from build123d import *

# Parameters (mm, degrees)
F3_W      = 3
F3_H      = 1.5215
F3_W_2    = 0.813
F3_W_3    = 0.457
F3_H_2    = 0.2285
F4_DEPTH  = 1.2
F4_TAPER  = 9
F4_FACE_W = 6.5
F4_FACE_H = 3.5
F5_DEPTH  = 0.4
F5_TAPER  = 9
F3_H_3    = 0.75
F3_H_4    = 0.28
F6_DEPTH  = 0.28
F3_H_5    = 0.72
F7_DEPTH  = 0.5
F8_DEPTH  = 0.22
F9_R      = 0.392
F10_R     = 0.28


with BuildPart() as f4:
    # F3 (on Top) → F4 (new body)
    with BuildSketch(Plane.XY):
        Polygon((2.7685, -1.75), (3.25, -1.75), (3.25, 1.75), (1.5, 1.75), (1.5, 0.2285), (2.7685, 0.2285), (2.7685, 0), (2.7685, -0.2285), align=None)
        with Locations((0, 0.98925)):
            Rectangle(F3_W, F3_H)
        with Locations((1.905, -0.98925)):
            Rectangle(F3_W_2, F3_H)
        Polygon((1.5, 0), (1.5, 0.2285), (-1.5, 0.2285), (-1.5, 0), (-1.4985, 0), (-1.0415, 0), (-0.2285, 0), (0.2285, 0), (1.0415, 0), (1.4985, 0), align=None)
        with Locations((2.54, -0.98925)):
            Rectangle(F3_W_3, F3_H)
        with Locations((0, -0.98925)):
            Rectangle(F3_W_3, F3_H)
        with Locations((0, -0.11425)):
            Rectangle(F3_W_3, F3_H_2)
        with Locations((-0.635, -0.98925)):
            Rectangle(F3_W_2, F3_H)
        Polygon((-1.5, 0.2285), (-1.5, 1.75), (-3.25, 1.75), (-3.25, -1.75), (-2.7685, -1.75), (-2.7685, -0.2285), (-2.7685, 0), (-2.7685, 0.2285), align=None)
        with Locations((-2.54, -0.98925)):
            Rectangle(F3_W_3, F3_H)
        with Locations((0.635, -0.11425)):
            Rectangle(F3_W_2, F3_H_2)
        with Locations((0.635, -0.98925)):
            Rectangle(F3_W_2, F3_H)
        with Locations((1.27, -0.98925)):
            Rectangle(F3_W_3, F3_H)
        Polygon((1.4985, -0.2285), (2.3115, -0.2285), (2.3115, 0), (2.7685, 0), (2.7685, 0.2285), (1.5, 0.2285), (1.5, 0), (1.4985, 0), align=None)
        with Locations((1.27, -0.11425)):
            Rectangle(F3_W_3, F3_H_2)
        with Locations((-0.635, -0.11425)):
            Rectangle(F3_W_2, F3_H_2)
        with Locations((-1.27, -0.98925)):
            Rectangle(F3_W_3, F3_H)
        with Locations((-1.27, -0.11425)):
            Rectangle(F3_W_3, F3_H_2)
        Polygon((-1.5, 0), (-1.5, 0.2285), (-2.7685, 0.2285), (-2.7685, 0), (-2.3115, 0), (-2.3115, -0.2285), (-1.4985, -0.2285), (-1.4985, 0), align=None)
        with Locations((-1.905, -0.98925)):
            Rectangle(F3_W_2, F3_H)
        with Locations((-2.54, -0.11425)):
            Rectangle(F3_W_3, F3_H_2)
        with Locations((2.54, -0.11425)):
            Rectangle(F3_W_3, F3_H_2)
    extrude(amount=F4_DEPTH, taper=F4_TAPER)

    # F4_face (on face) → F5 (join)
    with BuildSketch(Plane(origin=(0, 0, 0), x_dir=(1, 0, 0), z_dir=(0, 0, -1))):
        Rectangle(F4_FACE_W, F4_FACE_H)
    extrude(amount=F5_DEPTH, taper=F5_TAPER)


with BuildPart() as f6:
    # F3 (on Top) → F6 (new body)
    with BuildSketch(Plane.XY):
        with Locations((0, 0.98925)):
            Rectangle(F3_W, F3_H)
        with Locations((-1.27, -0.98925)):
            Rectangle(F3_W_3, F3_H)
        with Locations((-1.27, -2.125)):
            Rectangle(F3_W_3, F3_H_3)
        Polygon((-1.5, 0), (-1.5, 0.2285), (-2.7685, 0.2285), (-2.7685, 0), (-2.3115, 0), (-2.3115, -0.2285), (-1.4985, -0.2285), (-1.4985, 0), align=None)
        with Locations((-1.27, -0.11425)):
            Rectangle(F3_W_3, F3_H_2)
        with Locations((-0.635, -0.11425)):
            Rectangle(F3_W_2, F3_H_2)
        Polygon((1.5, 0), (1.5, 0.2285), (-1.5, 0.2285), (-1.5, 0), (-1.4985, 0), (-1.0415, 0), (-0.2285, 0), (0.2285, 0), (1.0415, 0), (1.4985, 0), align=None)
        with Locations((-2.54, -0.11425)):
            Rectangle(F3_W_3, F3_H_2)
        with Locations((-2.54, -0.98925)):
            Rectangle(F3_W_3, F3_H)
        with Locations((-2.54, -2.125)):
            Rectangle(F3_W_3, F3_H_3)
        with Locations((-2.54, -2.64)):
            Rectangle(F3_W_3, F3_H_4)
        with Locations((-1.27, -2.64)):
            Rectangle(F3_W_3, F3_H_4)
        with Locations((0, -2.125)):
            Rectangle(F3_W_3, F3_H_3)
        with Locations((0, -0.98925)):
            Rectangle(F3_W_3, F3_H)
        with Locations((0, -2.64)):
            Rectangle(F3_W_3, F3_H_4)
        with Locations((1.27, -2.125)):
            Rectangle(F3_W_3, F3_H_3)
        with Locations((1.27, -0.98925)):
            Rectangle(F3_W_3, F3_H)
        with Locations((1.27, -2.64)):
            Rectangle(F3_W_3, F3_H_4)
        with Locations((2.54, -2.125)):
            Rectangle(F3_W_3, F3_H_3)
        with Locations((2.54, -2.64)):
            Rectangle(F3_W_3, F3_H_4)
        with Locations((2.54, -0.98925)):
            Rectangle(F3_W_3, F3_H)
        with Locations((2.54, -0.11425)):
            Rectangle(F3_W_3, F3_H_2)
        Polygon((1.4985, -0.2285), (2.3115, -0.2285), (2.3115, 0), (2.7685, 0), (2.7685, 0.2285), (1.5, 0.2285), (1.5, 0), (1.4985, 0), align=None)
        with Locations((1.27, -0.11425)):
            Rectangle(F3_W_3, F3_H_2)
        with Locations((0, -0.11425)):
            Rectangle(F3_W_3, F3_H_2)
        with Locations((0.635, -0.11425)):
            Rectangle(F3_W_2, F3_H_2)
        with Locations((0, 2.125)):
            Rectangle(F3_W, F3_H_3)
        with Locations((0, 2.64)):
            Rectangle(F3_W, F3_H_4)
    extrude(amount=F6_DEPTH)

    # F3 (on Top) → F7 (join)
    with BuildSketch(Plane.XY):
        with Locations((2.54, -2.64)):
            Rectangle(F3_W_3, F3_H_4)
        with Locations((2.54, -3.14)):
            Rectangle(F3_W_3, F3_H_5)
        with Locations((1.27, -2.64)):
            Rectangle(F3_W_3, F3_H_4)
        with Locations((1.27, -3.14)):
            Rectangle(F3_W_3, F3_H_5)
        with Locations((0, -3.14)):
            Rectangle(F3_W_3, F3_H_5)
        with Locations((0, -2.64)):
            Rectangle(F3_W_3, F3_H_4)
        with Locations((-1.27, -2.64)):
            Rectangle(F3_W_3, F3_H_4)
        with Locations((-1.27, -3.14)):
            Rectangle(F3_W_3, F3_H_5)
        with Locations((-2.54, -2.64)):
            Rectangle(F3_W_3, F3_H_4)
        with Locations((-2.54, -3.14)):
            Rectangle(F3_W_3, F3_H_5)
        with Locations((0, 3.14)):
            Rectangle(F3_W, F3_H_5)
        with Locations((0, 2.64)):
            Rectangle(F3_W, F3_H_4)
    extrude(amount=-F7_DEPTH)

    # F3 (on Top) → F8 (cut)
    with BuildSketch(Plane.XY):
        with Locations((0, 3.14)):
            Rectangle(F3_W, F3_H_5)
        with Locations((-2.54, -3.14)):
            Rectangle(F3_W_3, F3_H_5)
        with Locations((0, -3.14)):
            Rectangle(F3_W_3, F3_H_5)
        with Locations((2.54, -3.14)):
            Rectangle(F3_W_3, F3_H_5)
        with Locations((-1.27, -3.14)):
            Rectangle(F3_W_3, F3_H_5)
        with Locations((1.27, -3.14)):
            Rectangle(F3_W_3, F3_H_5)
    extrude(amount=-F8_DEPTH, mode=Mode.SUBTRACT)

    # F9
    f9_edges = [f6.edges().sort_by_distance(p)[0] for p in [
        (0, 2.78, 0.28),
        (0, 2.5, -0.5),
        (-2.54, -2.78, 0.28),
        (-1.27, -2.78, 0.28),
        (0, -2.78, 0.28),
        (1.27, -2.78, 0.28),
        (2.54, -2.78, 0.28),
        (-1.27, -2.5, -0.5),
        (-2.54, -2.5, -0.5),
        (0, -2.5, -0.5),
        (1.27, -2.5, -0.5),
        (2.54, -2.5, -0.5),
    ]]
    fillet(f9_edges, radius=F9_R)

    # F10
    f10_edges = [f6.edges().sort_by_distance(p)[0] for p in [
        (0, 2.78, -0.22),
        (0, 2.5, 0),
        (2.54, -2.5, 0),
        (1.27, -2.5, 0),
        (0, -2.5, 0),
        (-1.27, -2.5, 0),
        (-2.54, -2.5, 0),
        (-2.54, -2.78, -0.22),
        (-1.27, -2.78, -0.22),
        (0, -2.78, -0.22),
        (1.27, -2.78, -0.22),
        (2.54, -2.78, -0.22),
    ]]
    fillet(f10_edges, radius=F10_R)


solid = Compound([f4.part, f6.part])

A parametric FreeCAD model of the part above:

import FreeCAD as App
import Part
import Sketcher

V = App.Vector


def edges_at(feature, points):
    """Names of the edges that pass closest to the given points."""
    edges = feature.Shape.Edges
    near = lambda p: min(range(len(edges)), key=lambda i: edges[i].distToShape(Part.Vertex(*p))[0])
    return sorted({f"Edge{near(p) + 1}" for p in points})

doc = App.newDocument("Part")
params = doc.addObject("Spreadsheet::Sheet", "Params")
for row, (alias, value) in enumerate([
    ("sketch1_width", "6.5 mm"),
    ("sketch1_height", "3.5 mm"),
    ("pad1_length", "1.2 mm"),
    ("pad1_taper", "-9 deg"),
    ("sketch2_width", "6.5 mm"),
    ("sketch2_height", "3.5 mm"),
    ("pad2_length", "0.4 mm"),
    ("pad2_taper", "-9 deg"),
    ("sketch3_width", "3 mm"),
    ("pad3_length", "0.28 mm"),
    ("sketch4_width", "3 mm"),
    ("sketch4_height", "1 mm"),
    ("pad4_length", "0.5 mm"),
    ("sketch5_width", "3 mm"),
    ("sketch5_height", "0.72 mm"),
    ("pocket1_length", "0.22 mm"),
    ("fillet_radius", "0.392 mm"),
    ("fillet2_radius", "0.28 mm"),
], start=1):
    params.set(f"A{row}", alias)
    params.set(f"B{row}", "=" + value)
    params.setAlias(f"B{row}", alias)

body = doc.addObject("PartDesign::Body", "Body")

# Sketch on XY plane
sketch1 = doc.addObject("Sketcher::SketchObject", "Sketch")
body.addObject(sketch1)
sketch1.AttachmentSupport = (doc.XY_Plane, [""])
sketch1.MapMode = "FlatFace"
sketch1.addGeometry([
    Part.LineSegment(V(-3.25, -1.75, 0), V(3.25, -1.75, 0)),
    Part.LineSegment(V(3.25, -1.75, 0), V(3.25, 1.75, 0)),
    Part.LineSegment(V(3.25, 1.75, 0), V(-3.25, 1.75, 0)),
    Part.LineSegment(V(-3.25, 1.75, 0), V(-3.25, -1.75, 0)),
], False)
sketch1.addConstraint([
    Sketcher.Constraint("Coincident", 0, 2, 1, 1),
    Sketcher.Constraint("Coincident", 1, 2, 2, 1),
    Sketcher.Constraint("Coincident", 2, 2, 3, 1),
    Sketcher.Constraint("Coincident", 3, 2, 0, 1),
    Sketcher.Constraint("Horizontal", 0),
    Sketcher.Constraint("Vertical", 1),
    Sketcher.Constraint("Horizontal", 2),
    Sketcher.Constraint("Vertical", 3),
    Sketcher.Constraint("Symmetric", 0, 2, 2, 2, -1, 1),
    Sketcher.Constraint("DistanceX", 0, 1, 0, 2, 6.5),
    Sketcher.Constraint("DistanceY", 1, 1, 1, 2, 3.5),
])
sketch1.setExpression("Constraints[9]", "Params.sketch1_width")
sketch1.setExpression("Constraints[10]", "Params.sketch1_height")
pad1 = doc.addObject("PartDesign::Pad", "Pad")
body.addObject(pad1)
pad1.Profile = sketch1
pad1.setExpression("Length", "Params.pad1_length")
pad1.setExpression("TaperAngle", "Params.pad1_taper")

# Sketch on XY plane
sketch2 = doc.addObject("Sketcher::SketchObject", "Sketch001")
body.addObject(sketch2)
sketch2.AttachmentSupport = (doc.XY_Plane, [""])
sketch2.MapMode = "FlatFace"
sketch2.addGeometry([
    Part.LineSegment(V(-3.25, -1.75, 0), V(-3.25, 1.75, 0)),
    Part.LineSegment(V(-3.25, 1.75, 0), V(3.25, 1.75, 0)),
    Part.LineSegment(V(3.25, 1.75, 0), V(3.25, -1.75, 0)),
    Part.LineSegment(V(3.25, -1.75, 0), V(-3.25, -1.75, 0)),
], False)
sketch2.addConstraint([
    Sketcher.Constraint("Coincident", 0, 2, 1, 1),
    Sketcher.Constraint("Coincident", 1, 2, 2, 1),
    Sketcher.Constraint("Coincident", 2, 2, 3, 1),
    Sketcher.Constraint("Coincident", 3, 2, 0, 1),
    Sketcher.Constraint("Vertical", 0),
    Sketcher.Constraint("Horizontal", 1),
    Sketcher.Constraint("Vertical", 2),
    Sketcher.Constraint("Horizontal", 3),
    Sketcher.Constraint("Symmetric", 0, 2, 2, 2, -1, 1),
    Sketcher.Constraint("DistanceX", 1, 1, 1, 2, 6.5),
    Sketcher.Constraint("DistanceY", 0, 1, 0, 2, 3.5),
])
sketch2.setExpression("Constraints[9]", "Params.sketch2_width")
sketch2.setExpression("Constraints[10]", "Params.sketch2_height")
pad2 = doc.addObject("PartDesign::Pad", "Pad001")
body.addObject(pad2)
pad2.Profile = sketch2
pad2.setExpression("Length", "Params.pad2_length")
pad2.Reversed = True
pad2.setExpression("TaperAngle", "Params.pad2_taper")
body2 = doc.addObject("PartDesign::Body", "Body001")

# Sketch on XY plane
sketch3 = doc.addObject("Sketcher::SketchObject", "Sketch002")
body2.addObject(sketch3)
sketch3.AttachmentSupport = (doc.getObject("XY_Plane001"), [""])
sketch3.MapMode = "FlatFace"
sketch3.addGeometry([
    Part.LineSegment(V(-1.5, 0.2285, 0), V(-2.7685, 0.2285, 0)),  # 0
    Part.LineSegment(V(-2.7685, 0.2285, 0), V(-2.7685, -2.78, 0)),  # 1
    Part.LineSegment(V(-2.7685, -2.78, 0), V(-2.3115, -2.78, 0)),  # 2
    Part.LineSegment(V(-2.3115, -2.78, 0), V(-2.3115, -0.2285, 0)),  # 3
    Part.LineSegment(V(-2.3115, -0.2285, 0), V(-1.4985, -0.2285, 0)),  # 4
    Part.LineSegment(V(-1.4985, -0.2285, 0), V(-1.4985, -2.78, 0)),  # 5
    Part.LineSegment(V(-1.4985, -2.78, 0), V(-1.0415, -2.78, 0)),  # 6
    Part.LineSegment(V(-1.0415, -2.78, 0), V(-1.0415, -0.2285, 0)),  # 7
    Part.LineSegment(V(-1.0415, -0.2285, 0), V(-0.2285, -0.2285, 0)),  # 8
    Part.LineSegment(V(-0.2285, -0.2285, 0), V(-0.2285, -2.78, 0)),  # 9
    Part.LineSegment(V(-0.2285, -2.78, 0), V(0.2285, -2.78, 0)),  # 10
    Part.LineSegment(V(0.2285, -2.78, 0), V(0.2285, -0.2285, 0)),  # 11
    Part.LineSegment(V(0.2285, -0.2285, 0), V(1.0415, -0.2285, 0)),  # 12
    Part.LineSegment(V(1.0415, -0.2285, 0), V(1.0415, -2.78, 0)),  # 13
    Part.LineSegment(V(1.0415, -2.78, 0), V(1.4985, -2.78, 0)),  # 14
    Part.LineSegment(V(1.4985, -2.78, 0), V(1.4985, -0.2285, 0)),  # 15
    Part.LineSegment(V(1.4985, -0.2285, 0), V(2.3115, -0.2285, 0)),  # 16
    Part.LineSegment(V(2.3115, -0.2285, 0), V(2.3115, -2.78, 0)),  # 17
    Part.LineSegment(V(2.3115, -2.78, 0), V(2.7685, -2.78, 0)),  # 18
    Part.LineSegment(V(2.7685, -2.78, 0), V(2.7685, 0.2285, 0)),  # 19
    Part.LineSegment(V(2.7685, 0.2285, 0), V(1.5, 0.2285, 0)),  # 20
    Part.LineSegment(V(1.5, 0.2285, 0), V(1.5, 2.78, 0)),  # 21
    Part.LineSegment(V(1.5, 2.78, 0), V(-1.5, 2.78, 0)),  # 22
    Part.LineSegment(V(-1.5, 2.78, 0), V(-1.5, 0.2285, 0)),  # 23
], False)
sketch3.addConstraint([
    Sketcher.Constraint("Coincident", 0, 2, 1, 1),
    Sketcher.Constraint("Coincident", 1, 2, 2, 1),
    Sketcher.Constraint("Coincident", 2, 2, 3, 1),
    Sketcher.Constraint("Coincident", 3, 2, 4, 1),
    Sketcher.Constraint("Coincident", 4, 2, 5, 1),
    Sketcher.Constraint("Coincident", 5, 2, 6, 1),
    Sketcher.Constraint("Coincident", 6, 2, 7, 1),
    Sketcher.Constraint("Coincident", 7, 2, 8, 1),
    Sketcher.Constraint("Coincident", 8, 2, 9, 1),
    Sketcher.Constraint("Coincident", 9, 2, 10, 1),
    Sketcher.Constraint("Coincident", 10, 2, 11, 1),
    Sketcher.Constraint("Coincident", 11, 2, 12, 1),
    Sketcher.Constraint("Coincident", 12, 2, 13, 1),
    Sketcher.Constraint("Coincident", 13, 2, 14, 1),
    Sketcher.Constraint("Coincident", 14, 2, 15, 1),
    Sketcher.Constraint("Coincident", 15, 2, 16, 1),
    Sketcher.Constraint("Coincident", 16, 2, 17, 1),
    Sketcher.Constraint("Coincident", 17, 2, 18, 1),
    Sketcher.Constraint("Coincident", 18, 2, 19, 1),
    Sketcher.Constraint("Coincident", 19, 2, 20, 1),
    Sketcher.Constraint("Coincident", 20, 2, 21, 1),
    Sketcher.Constraint("Coincident", 21, 2, 22, 1),
    Sketcher.Constraint("Coincident", 22, 2, 23, 1),
    Sketcher.Constraint("Coincident", 23, 2, 0, 1),
    Sketcher.Constraint("Horizontal", 0),
    Sketcher.Constraint("Vertical", 1),
    Sketcher.Constraint("Horizontal", 2),
    Sketcher.Constraint("Vertical", 3),
    Sketcher.Constraint("Horizontal", 4),
    Sketcher.Constraint("Vertical", 5),
    Sketcher.Constraint("Horizontal", 6),
    Sketcher.Constraint("Vertical", 7),
    Sketcher.Constraint("Horizontal", 8),
    Sketcher.Constraint("Vertical", 9),
    Sketcher.Constraint("Horizontal", 10),
    Sketcher.Constraint("Vertical", 11),
    Sketcher.Constraint("Horizontal", 12),
    Sketcher.Constraint("Vertical", 13),
    Sketcher.Constraint("Horizontal", 14),
    Sketcher.Constraint("Vertical", 15),
    Sketcher.Constraint("Horizontal", 16),
    Sketcher.Constraint("Vertical", 17),
    Sketcher.Constraint("Horizontal", 18),
    Sketcher.Constraint("Vertical", 19),
    Sketcher.Constraint("Horizontal", 20),
    Sketcher.Constraint("Vertical", 21),
    Sketcher.Constraint("Horizontal", 22),
    Sketcher.Constraint("Vertical", 23),
    Sketcher.Constraint("Symmetric", 8, 2, 11, 2, -2),
    Sketcher.Constraint("Symmetric", 6, 2, 13, 2, -2),
    Sketcher.Constraint("Symmetric", 4, 2, 15, 2, -2),
    Sketcher.Constraint("Symmetric", 2, 2, 17, 2, -2),
    Sketcher.Constraint("Symmetric", 0, 2, 19, 2, -2),
    Sketcher.Constraint("Horizontal", 2, 2, 5, 2),
    Sketcher.Constraint("Horizontal", 4, 2, 7, 2),
    Sketcher.Constraint("Horizontal", 6, 2, 9, 2),
    Sketcher.Constraint("Equal", 2, 6),
    Sketcher.Constraint("Equal", 4, 8),
    Sketcher.Constraint("Equal", 6, 10),
    Sketcher.Constraint("Equal", 0, 20),
    Sketcher.Constraint("Equal", 17, 21),
    Sketcher.Constraint("DistanceX", 22, 2, 22, 1, 3.0),
    Sketcher.Constraint("DistanceX", 2, 1, 2, 2, 0.457),
    Sketcher.Constraint("DistanceX", 4, 1, 4, 2, 0.813),
    Sketcher.Constraint("DistanceY", 1, 2, -1, 1, 2.78),
    Sketcher.Constraint("DistanceY", -1, 1, 21, 2, 2.78),
    Sketcher.Constraint("DistanceY", 1, 2, 1, 1, 3.0085),
])
sketch3.setExpression("Constraints[61]", "Params.sketch3_width")
pad3 = doc.addObject("PartDesign::Pad", "Pad002")
body2.addObject(pad3)
pad3.Profile = sketch3
pad3.setExpression("Length", "Params.pad3_length")

# Sketch on XY plane
sketch4 = doc.addObject("Sketcher::SketchObject", "Sketch003")
body2.addObject(sketch4)
sketch4.AttachmentSupport = (doc.getObject("XY_Plane001"), [""])
sketch4.MapMode = "FlatFace"
sketch4.addGeometry([
    Part.LineSegment(V(2.3115, -2.5, 0), V(2.3115, -3.5, 0)),  # 0
    Part.LineSegment(V(2.3115, -3.5, 0), V(2.7685, -3.5, 0)),  # 1
    Part.LineSegment(V(2.7685, -3.5, 0), V(2.7685, -2.5, 0)),  # 2
    Part.LineSegment(V(2.7685, -2.5, 0), V(2.3115, -2.5, 0)),  # 3
    Part.LineSegment(V(1.0415, -2.5, 0), V(1.0415, -3.5, 0)),  # 4
    Part.LineSegment(V(1.0415, -3.5, 0), V(1.4985, -3.5, 0)),  # 5
    Part.LineSegment(V(1.4985, -3.5, 0), V(1.4985, -2.5, 0)),  # 6
    Part.LineSegment(V(1.4985, -2.5, 0), V(1.0415, -2.5, 0)),  # 7
    Part.LineSegment(V(-0.2285, -3.5, 0), V(0.2285, -3.5, 0)),  # 8
    Part.LineSegment(V(0.2285, -3.5, 0), V(0.2285, -2.5, 0)),  # 9
    Part.LineSegment(V(0.2285, -2.5, 0), V(-0.2285, -2.5, 0)),  # 10
    Part.LineSegment(V(-0.2285, -2.5, 0), V(-0.2285, -3.5, 0)),  # 11
    Part.LineSegment(V(-1.4985, -2.5, 0), V(-1.4985, -3.5, 0)),  # 12
    Part.LineSegment(V(-1.4985, -3.5, 0), V(-1.0415, -3.5, 0)),  # 13
    Part.LineSegment(V(-1.0415, -3.5, 0), V(-1.0415, -2.5, 0)),  # 14
    Part.LineSegment(V(-1.0415, -2.5, 0), V(-1.4985, -2.5, 0)),  # 15
    Part.LineSegment(V(-2.7685, -2.5, 0), V(-2.7685, -3.5, 0)),  # 16
    Part.LineSegment(V(-2.7685, -3.5, 0), V(-2.3115, -3.5, 0)),  # 17
    Part.LineSegment(V(-2.3115, -3.5, 0), V(-2.3115, -2.5, 0)),  # 18
    Part.LineSegment(V(-2.3115, -2.5, 0), V(-2.7685, -2.5, 0)),  # 19
    Part.LineSegment(V(-1.5, 3.5, 0), V(-1.5, 2.5, 0)),  # 20
    Part.LineSegment(V(-1.5, 2.5, 0), V(1.5, 2.5, 0)),  # 21
    Part.LineSegment(V(1.5, 2.5, 0), V(1.5, 3.5, 0)),  # 22
    Part.LineSegment(V(1.5, 3.5, 0), V(-1.5, 3.5, 0)),  # 23
], False)
sketch4.addConstraint([
    Sketcher.Constraint("Coincident", 0, 2, 1, 1),
    Sketcher.Constraint("Coincident", 1, 2, 2, 1),
    Sketcher.Constraint("Coincident", 2, 2, 3, 1),
    Sketcher.Constraint("Coincident", 3, 2, 0, 1),
    Sketcher.Constraint("Coincident", 4, 2, 5, 1),
    Sketcher.Constraint("Coincident", 5, 2, 6, 1),
    Sketcher.Constraint("Coincident", 6, 2, 7, 1),
    Sketcher.Constraint("Coincident", 7, 2, 4, 1),
    Sketcher.Constraint("Coincident", 8, 2, 9, 1),
    Sketcher.Constraint("Coincident", 9, 2, 10, 1),
    Sketcher.Constraint("Coincident", 10, 2, 11, 1),
    Sketcher.Constraint("Coincident", 11, 2, 8, 1),
    Sketcher.Constraint("Coincident", 12, 2, 13, 1),
    Sketcher.Constraint("Coincident", 13, 2, 14, 1),
    Sketcher.Constraint("Coincident", 14, 2, 15, 1),
    Sketcher.Constraint("Coincident", 15, 2, 12, 1),
    Sketcher.Constraint("Coincident", 16, 2, 17, 1),
    Sketcher.Constraint("Coincident", 17, 2, 18, 1),
    Sketcher.Constraint("Coincident", 18, 2, 19, 1),
    Sketcher.Constraint("Coincident", 19, 2, 16, 1),
    Sketcher.Constraint("Coincident", 20, 2, 21, 1),
    Sketcher.Constraint("Coincident", 21, 2, 22, 1),
    Sketcher.Constraint("Coincident", 22, 2, 23, 1),
    Sketcher.Constraint("Coincident", 23, 2, 20, 1),
    Sketcher.Constraint("Vertical", 0),
    Sketcher.Constraint("Horizontal", 1),
    Sketcher.Constraint("Vertical", 2),
    Sketcher.Constraint("Horizontal", 3),
    Sketcher.Constraint("Vertical", 4),
    Sketcher.Constraint("Horizontal", 5),
    Sketcher.Constraint("Vertical", 6),
    Sketcher.Constraint("Horizontal", 7),
    Sketcher.Constraint("Horizontal", 8),
    Sketcher.Constraint("Vertical", 9),
    Sketcher.Constraint("Horizontal", 10),
    Sketcher.Constraint("Vertical", 11),
    Sketcher.Constraint("Vertical", 12),
    Sketcher.Constraint("Horizontal", 13),
    Sketcher.Constraint("Vertical", 14),
    Sketcher.Constraint("Horizontal", 15),
    Sketcher.Constraint("Vertical", 16),
    Sketcher.Constraint("Horizontal", 17),
    Sketcher.Constraint("Vertical", 18),
    Sketcher.Constraint("Horizontal", 19),
    Sketcher.Constraint("Vertical", 20),
    Sketcher.Constraint("Horizontal", 21),
    Sketcher.Constraint("Vertical", 22),
    Sketcher.Constraint("Horizontal", 23),
    Sketcher.Constraint("Symmetric", 5, 2, 12, 2, -2),
    Sketcher.Constraint("Symmetric", 7, 2, 14, 2, -2),
    Sketcher.Constraint("Symmetric", 1, 2, 16, 2, -2),
    Sketcher.Constraint("Symmetric", 3, 2, 18, 2, -2),
    Sketcher.Constraint("Horizontal", 1, 2, 4, 2),
    Sketcher.Constraint("Horizontal", 3, 2, 6, 2),
    Sketcher.Constraint("Horizontal", 5, 2, 8, 2),
    Sketcher.Constraint("Horizontal", 7, 2, 9, 2),
    Sketcher.Constraint("Equal", 3, 5),
    Sketcher.Constraint("Equal", 7, 8),
    Sketcher.Constraint("Equal", 18, 20),
    Sketcher.Constraint("DistanceX", 21, 1, 21, 2, 3.0),
    Sketcher.Constraint("DistanceY", 0, 2, 0, 1, 1.0),
    Sketcher.Constraint("DistanceY", 15, 2, 20, 2, 5.0),
    Sketcher.Constraint("DistanceY", 0, 2, -1, 1, 3.5),
    Sketcher.Constraint("DistanceX", 20, 2, -1, 1, 1.5),
    Sketcher.Constraint("DistanceX", 1, 1, 1, 2, 0.457),
    Sketcher.Constraint("DistanceX", 4, 2, 0, 2, 1.27),
    Sketcher.Constraint("DistanceX", 8, 2, 5, 2, 1.27),
    Sketcher.Constraint("DistanceX", 12, 2, 11, 2, 1.27),
])
sketch4.setExpression("Constraints[59]", "Params.sketch4_width")
sketch4.setExpression("Constraints[60]", "Params.sketch4_height")
pad4 = doc.addObject("PartDesign::Pad", "Pad003")
body2.addObject(pad4)
pad4.Profile = sketch4
pad4.setExpression("Length", "Params.pad4_length")
pad4.Reversed = True

# Sketch on XY plane
sketch5 = doc.addObject("Sketcher::SketchObject", "Sketch004")
body2.addObject(sketch5)
sketch5.AttachmentSupport = (doc.getObject("XY_Plane001"), [""])
sketch5.MapMode = "FlatFace"
sketch5.addGeometry([
    Part.LineSegment(V(-1.5, 3.5, 0), V(-1.5, 2.78, 0)),  # 0
    Part.LineSegment(V(-1.5, 2.78, 0), V(1.5, 2.78, 0)),  # 1
    Part.LineSegment(V(1.5, 2.78, 0), V(1.5, 3.5, 0)),  # 2
    Part.LineSegment(V(1.5, 3.5, 0), V(-1.5, 3.5, 0)),  # 3
    Part.LineSegment(V(-2.7685, -2.78, 0), V(-2.7685, -3.5, 0)),  # 4
    Part.LineSegment(V(-2.7685, -3.5, 0), V(-2.3115, -3.5, 0)),  # 5
    Part.LineSegment(V(-2.3115, -3.5, 0), V(-2.3115, -2.78, 0)),  # 6
    Part.LineSegment(V(-2.3115, -2.78, 0), V(-2.7685, -2.78, 0)),  # 7
    Part.LineSegment(V(-0.2285, -2.78, 0), V(-0.2285, -3.5, 0)),  # 8
    Part.LineSegment(V(-0.2285, -3.5, 0), V(0.2285, -3.5, 0)),  # 9
    Part.LineSegment(V(0.2285, -3.5, 0), V(0.2285, -2.78, 0)),  # 10
    Part.LineSegment(V(0.2285, -2.78, 0), V(-0.2285, -2.78, 0)),  # 11
    Part.LineSegment(V(2.3115, -2.78, 0), V(2.3115, -3.5, 0)),  # 12
    Part.LineSegment(V(2.3115, -3.5, 0), V(2.7685, -3.5, 0)),  # 13
    Part.LineSegment(V(2.7685, -3.5, 0), V(2.7685, -2.78, 0)),  # 14
    Part.LineSegment(V(2.7685, -2.78, 0), V(2.3115, -2.78, 0)),  # 15
    Part.LineSegment(V(-1.4985, -2.78, 0), V(-1.4985, -3.5, 0)),  # 16
    Part.LineSegment(V(-1.4985, -3.5, 0), V(-1.0415, -3.5, 0)),  # 17
    Part.LineSegment(V(-1.0415, -3.5, 0), V(-1.0415, -2.78, 0)),  # 18
    Part.LineSegment(V(-1.0415, -2.78, 0), V(-1.4985, -2.78, 0)),  # 19
    Part.LineSegment(V(1.0415, -2.78, 0), V(1.0415, -3.5, 0)),  # 20
    Part.LineSegment(V(1.0415, -3.5, 0), V(1.4985, -3.5, 0)),  # 21
    Part.LineSegment(V(1.4985, -3.5, 0), V(1.4985, -2.78, 0)),  # 22
    Part.LineSegment(V(1.4985, -2.78, 0), V(1.0415, -2.78, 0)),  # 23
], False)
sketch5.addConstraint([
    Sketcher.Constraint("Coincident", 0, 2, 1, 1),
    Sketcher.Constraint("Coincident", 1, 2, 2, 1),
    Sketcher.Constraint("Coincident", 2, 2, 3, 1),
    Sketcher.Constraint("Coincident", 3, 2, 0, 1),
    Sketcher.Constraint("Coincident", 4, 2, 5, 1),
    Sketcher.Constraint("Coincident", 5, 2, 6, 1),
    Sketcher.Constraint("Coincident", 6, 2, 7, 1),
    Sketcher.Constraint("Coincident", 7, 2, 4, 1),
    Sketcher.Constraint("Coincident", 8, 2, 9, 1),
    Sketcher.Constraint("Coincident", 9, 2, 10, 1),
    Sketcher.Constraint("Coincident", 10, 2, 11, 1),
    Sketcher.Constraint("Coincident", 11, 2, 8, 1),
    Sketcher.Constraint("Coincident", 12, 2, 13, 1),
    Sketcher.Constraint("Coincident", 13, 2, 14, 1),
    Sketcher.Constraint("Coincident", 14, 2, 15, 1),
    Sketcher.Constraint("Coincident", 15, 2, 12, 1),
    Sketcher.Constraint("Coincident", 16, 2, 17, 1),
    Sketcher.Constraint("Coincident", 17, 2, 18, 1),
    Sketcher.Constraint("Coincident", 18, 2, 19, 1),
    Sketcher.Constraint("Coincident", 19, 2, 16, 1),
    Sketcher.Constraint("Coincident", 20, 2, 21, 1),
    Sketcher.Constraint("Coincident", 21, 2, 22, 1),
    Sketcher.Constraint("Coincident", 22, 2, 23, 1),
    Sketcher.Constraint("Coincident", 23, 2, 20, 1),
    Sketcher.Constraint("Vertical", 0),
    Sketcher.Constraint("Horizontal", 1),
    Sketcher.Constraint("Vertical", 2),
    Sketcher.Constraint("Horizontal", 3),
    Sketcher.Constraint("Vertical", 4),
    Sketcher.Constraint("Horizontal", 5),
    Sketcher.Constraint("Vertical", 6),
    Sketcher.Constraint("Horizontal", 7),
    Sketcher.Constraint("Vertical", 8),
    Sketcher.Constraint("Horizontal", 9),
    Sketcher.Constraint("Vertical", 10),
    Sketcher.Constraint("Horizontal", 11),
    Sketcher.Constraint("Vertical", 12),
    Sketcher.Constraint("Horizontal", 13),
    Sketcher.Constraint("Vertical", 14),
    Sketcher.Constraint("Horizontal", 15),
    Sketcher.Constraint("Vertical", 16),
    Sketcher.Constraint("Horizontal", 17),
    Sketcher.Constraint("Vertical", 18),
    Sketcher.Constraint("Horizontal", 19),
    Sketcher.Constraint("Vertical", 20),
    Sketcher.Constraint("Horizontal", 21),
    Sketcher.Constraint("Vertical", 22),
    Sketcher.Constraint("Horizontal", 23),
    Sketcher.Constraint("Symmetric", 5, 2, 12, 2, -2),
    Sketcher.Constraint("Symmetric", 7, 2, 14, 2, -2),
    Sketcher.Constraint("Symmetric", 17, 2, 20, 2, -2),
    Sketcher.Constraint("Symmetric", 19, 2, 22, 2, -2),
    Sketcher.Constraint("Horizontal", 5, 2, 8, 2),
    Sketcher.Constraint("Horizontal", 7, 2, 10, 2),
    Sketcher.Constraint("Horizontal", 13, 2, 16, 2),
    Sketcher.Constraint("Horizontal", 15, 2, 18, 2),
    Sketcher.Constraint("Equal", 7, 9),
    Sketcher.Constraint("Equal", 15, 17),
    Sketcher.Constraint("Equal", 2, 4),
    Sketcher.Constraint("DistanceX", 1, 1, 1, 2, 3.0),
    Sketcher.Constraint("DistanceY", 4, 2, 3, 2, 7.0),
    Sketcher.Constraint("DistanceY", 0, 2, 0, 1, 0.72),
    Sketcher.Constraint("DistanceX", 0, 2, -1, 1, 1.5),
    Sketcher.Constraint("DistanceY", -1, 1, 2, 2, 3.5),
    Sketcher.Constraint("DistanceX", 5, 1, 5, 2, 0.457),
    Sketcher.Constraint("DistanceX", 4, 2, 8, 2, 2.54),
    Sketcher.Constraint("DistanceX", 8, 2, 12, 2, 2.54),
    Sketcher.Constraint("DistanceX", 4, 2, 16, 2, 1.27),
])
sketch5.setExpression("Constraints[59]", "Params.sketch5_width")
sketch5.setExpression("Constraints[61]", "Params.sketch5_height")
pocket1 = doc.addObject("PartDesign::Pocket", "Pocket")
body2.addObject(pocket1)
pocket1.Profile = sketch5
pocket1.setExpression("Length", "Params.pocket1_length")
doc.recompute()

fillet = doc.addObject("PartDesign::Fillet", "Fillet")
body2.addObject(fillet)
fillet.Base = (pocket1, edges_at(pocket1, [
    (0, 2.78, 0.28),
    (0, 2.5, -0.5),
    (-2.54, -2.78, 0.28),
    (-1.27, -2.78, 0.28),
    (0, -2.78, 0.28),
    (1.27, -2.78, 0.28),
    (2.54, -2.78, 0.28),
    (-1.27, -2.5, -0.5),
    (-2.54, -2.5, -0.5),
    (0, -2.5, -0.5),
    (1.27, -2.5, -0.5),
    (2.54, -2.5, -0.5),
]))
fillet.setExpression("Radius", "Params.fillet_radius")
doc.recompute()

fillet2 = doc.addObject("PartDesign::Fillet", "Fillet001")
body2.addObject(fillet2)
fillet2.Base = (fillet, edges_at(fillet, [
    (0, 2.78, -0.22),
    (0, 2.5, 0),
    (2.54, -2.5, 0),
    (1.27, -2.5, 0),
    (0, -2.5, 0),
    (-1.27, -2.5, 0),
    (-2.54, -2.5, 0),
    (-2.54, -2.78, -0.22),
    (-1.27, -2.78, -0.22),
    (0, -2.78, -0.22),
    (1.27, -2.78, -0.22),
    (2.54, -2.78, -0.22),
]))
fillet2.setExpression("Radius", "Params.fillet2_radius")

doc.recompute()
